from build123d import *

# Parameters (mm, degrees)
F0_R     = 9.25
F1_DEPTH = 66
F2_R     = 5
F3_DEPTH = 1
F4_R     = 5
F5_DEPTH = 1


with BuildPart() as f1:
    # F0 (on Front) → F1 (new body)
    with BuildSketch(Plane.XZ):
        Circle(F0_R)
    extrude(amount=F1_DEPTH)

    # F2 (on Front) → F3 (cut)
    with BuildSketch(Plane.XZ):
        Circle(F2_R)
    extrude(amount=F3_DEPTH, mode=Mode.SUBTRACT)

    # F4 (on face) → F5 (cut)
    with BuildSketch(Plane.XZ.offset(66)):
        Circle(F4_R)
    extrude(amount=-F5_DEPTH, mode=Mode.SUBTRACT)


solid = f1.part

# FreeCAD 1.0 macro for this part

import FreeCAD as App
import Part
import Sketcher
from FreeCAD import Vector
Q = App.Units.Quantity

doc = App.newDocument("Part")
params = doc.addObject("Spreadsheet::Sheet", "Params")
for row, (alias, value) in enumerate([
    ("sketch1_diameter", "18.5 mm"),
    ("pad1_length", "66 mm"),
    ("sketch2_diameter", "10 mm"),
    ("pocket1_length", "1 mm"),
    ("sketch3_diameter", "10 mm"),
    ("pocket2_length", "1 mm"),
], start=1):
    params.set(f"A{row}", alias)
    params.set(f"B{row}", "=" + value)
    params.setAlias(f"B{row}", alias)

body = doc.addObject("PartDesign::Body", "Body")

# Sketch on XZ plane
sketch1 = doc.addObject("Sketcher::SketchObject", "Sketch")
body.addObject(sketch1)
sketch1.AttachmentSupport = (doc.XZ_Plane, [""])
sketch1.MapMode = "FlatFace"
sketch1.addGeometry(Part.Circle(Vector(0, 0, 0), Vector(0, 0, 1), 9), False)
sketch1.addConstraint(Sketcher.Constraint("Coincident", 0, 3, -1, 1))
sketch1.addConstraint(Sketcher.Constraint("Diameter", 0, Q("18.5 mm")))
sketch1.setExpression("Constraints[1]", "Params.sketch1_diameter")
pad1 = doc.addObject("PartDesign::Pad", "Pad")
body.addObject(pad1)
pad1.Profile = sketch1
pad1.setExpression("Length", "Params.pad1_length")

# Sketch on XZ plane
sketch2 = doc.addObject("Sketcher::SketchObject", "Sketch001")
body.addObject(sketch2)
sketch2.AttachmentSupport = (doc.XZ_Plane, [""])
sketch2.MapMode = "FlatFace"
sketch2.addGeometry(Part.Circle(Vector(0, 0, 0), Vector(0, 0, 1), 5), False)
sketch2.addConstraint(Sketcher.Constraint("Coincident", 0, 3, -1, 1))
sketch2.addConstraint(Sketcher.Constraint("Diameter", 0, Q("10 mm")))
sketch2.setExpression("Constraints[1]", "Params.sketch2_diameter")
pocket1 = doc.addObject("PartDesign::Pocket", "Pocket")
body.addObject(pocket1)
pocket1.Profile = sketch2
pocket1.setExpression("Length", "Params.pocket1_length")
pocket1.Reversed = True

# Sketch on XZ plane
sketch3 = doc.addObject("Sketcher::SketchObject", "Sketch002")
body.addObject(sketch3)
sketch3.AttachmentSupport = (doc.XZ_Plane, [""])
sketch3.MapMode = "FlatFace"
sketch3.AttachmentOffset = App.Placement(Vector(0, 0, 66), App.Rotation())
sketch3.addGeometry(Part.Circle(Vector(0, 0, 0), Vector(0, 0, 1), 5), False)
sketch3.addConstraint(Sketcher.Constraint("Coincident", 0, 3, -1, 1))
sketch3.addConstraint(Sketcher.Constraint("Diameter", 0, Q("10 mm")))
sketch3.setExpression("Constraints[1]", "Params.sketch3_diameter")
pocket2 = doc.addObject("PartDesign::Pocket", "Pocket001")
body.addObject(pocket2)
pocket2.Profile = sketch3
pocket2.setExpression("Length", "Params.pocket2_length")

doc.recompute()
